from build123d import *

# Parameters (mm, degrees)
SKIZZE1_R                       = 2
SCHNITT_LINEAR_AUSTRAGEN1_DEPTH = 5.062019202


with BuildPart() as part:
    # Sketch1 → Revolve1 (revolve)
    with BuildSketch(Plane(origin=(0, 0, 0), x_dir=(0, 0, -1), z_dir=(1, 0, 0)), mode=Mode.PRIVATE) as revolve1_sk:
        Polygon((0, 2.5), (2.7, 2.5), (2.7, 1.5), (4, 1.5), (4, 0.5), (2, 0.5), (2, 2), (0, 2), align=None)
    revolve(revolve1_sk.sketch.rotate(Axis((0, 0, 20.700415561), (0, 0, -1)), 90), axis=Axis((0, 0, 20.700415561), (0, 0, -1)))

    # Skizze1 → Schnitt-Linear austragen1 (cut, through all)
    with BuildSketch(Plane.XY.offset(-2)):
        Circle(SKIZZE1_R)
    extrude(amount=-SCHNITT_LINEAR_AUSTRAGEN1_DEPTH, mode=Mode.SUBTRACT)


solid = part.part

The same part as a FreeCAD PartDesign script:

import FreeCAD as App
import Part
import Sketcher

V = App.Vector

doc = App.newDocument("Part")
params = doc.addObject("Spreadsheet::Sheet", "Params")
for row, (alias, value) in enumerate([
    ("sketch1_width", "1 mm"),
    ("sketch1_height", "2 mm"),
    ("sketch1_width2", "0.5 mm"),
    ("sketch1_height2", "2.7 mm"),
    ("revolution_angle", "360 deg"),
    ("sketch2_diameter", "4 mm"),
], start=1):
    params.set(f"A{row}", alias)
    params.set(f"B{row}", "=" + value)
    params.setAlias(f"B{row}", alias)

body = doc.addObject("PartDesign::Body", "Body")

# Sketch on YZ plane
sketch1 = body.newObject("Sketcher::SketchObject", "Sketch")
sketch1.AttachmentSupport = (doc.getObject("YZ_Plane"), [""])
sketch1.MapMode = "FlatFace"
sketch1.addGeometry([
    Part.LineSegment(V(2.5, -2.7, 0), V(2.5, 0, 0)),  # 0
    Part.LineSegment(V(2.5, 0, 0), V(2, 0, 0)),  # 1
    Part.LineSegment(V(2, 0, 0), V(2, -2, 0)),  # 2
    Part.LineSegment(V(2, -2, 0), V(0.5, -2, 0)),  # 3
    Part.LineSegment(V(0.5, -2, 0), V(0.5, -4, 0)),  # 4
    Part.LineSegment(V(0.5, -4, 0), V(1.5, -4, 0)),  # 5
    Part.LineSegment(V(1.5, -4, 0), V(1.5, -2.7, 0)),  # 6
    Part.LineSegment(V(1.5, -2.7, 0), V(2.5, -2.7, 0)),  # 7
], False)
sketch1.addConstraint([
    Sketcher.Constraint("Coincident", 0, 2, 1, 1),
    Sketcher.Constraint("Coincident", 1, 2, 2, 1),
    Sketcher.Constraint("Coincident", 2, 2, 3, 1),
    Sketcher.Constraint("Coincident", 3, 2, 4, 1),
    Sketcher.Constraint("Coincident", 4, 2, 5, 1),
    Sketcher.Constraint("Coincident", 5, 2, 6, 1),
    Sketcher.Constraint("Coincident", 6, 2, 7, 1),
    Sketcher.Constraint("Coincident", 7, 2, 0, 1),
    Sketcher.Constraint("Vertical", 0),
    Sketcher.Constraint("Horizontal", 1),
    Sketcher.Constraint("Vertical", 2),
    Sketcher.Constraint("Horizontal", 3),
    Sketcher.Constraint("Vertical", 4),
    Sketcher.Constraint("Horizontal", 5),
    Sketcher.Constraint("Vertical", 6),
    Sketcher.Constraint("Horizontal", 7),
    Sketcher.Constraint("PointOnObject", 0, 2, -1),
    Sketcher.Constraint("Equal", 5, 7),
    Sketcher.Constraint("Equal", 2, 4),
    Sketcher.Constraint("DistanceX", 5, 1, 5, 2, 1.0),
    Sketcher.Constraint("DistanceY", 2, 2, 2, 1, 2.0),
    Sketcher.Constraint("DistanceX", 1, 2, 1, 1, 0.5),
    Sketcher.Constraint("DistanceY", 0, 1, 0, 2, 2.7),
    Sketcher.Constraint("DistanceX", -1, 1, 1, 2, 2.0),
])
sketch1.setExpression("Constraints[19]", "Params.sketch1_width")
sketch1.setExpression("Constraints[20]", "Params.sketch1_height")
sketch1.setExpression("Constraints[21]", "Params.sketch1_width2")
sketch1.setExpression("Constraints[22]", "Params.sketch1_height2")
revolution = body.newObject("PartDesign::Revolution", "Revolution")
revolution.Profile = sketch1
revolution.ReferenceAxis = (sketch1, ["V_Axis"])
revolution.setExpression("Angle", "Params.revolution_angle")

# Sketch on XY plane
sketch2 = body.newObject("Sketcher::SketchObject", "Sketch001")
sketch2.AttachmentSupport = (doc.getObject("XY_Plane"), [""])
sketch2.MapMode = "FlatFace"
sketch2.AttachmentOffset = App.Placement(V(0, 0, -2), App.Rotation())
sketch2.addGeometry(Part.Circle(V(0, 0, 0), V(0, 0, 1), 2), False)
sketch2.addConstraint([
    Sketcher.Constraint("Coincident", 0, 3, -1, 1),
    Sketcher.Constraint("Diameter", 0, 4.0),
])
sketch2.setExpression("Constraints[1]", "Params.sketch2_diameter")
pocket1 = body.newObject("PartDesign::Pocket", "Pocket")
pocket1.Profile = sketch2
pocket1.Type = "ThroughAll"

doc.recompute()
